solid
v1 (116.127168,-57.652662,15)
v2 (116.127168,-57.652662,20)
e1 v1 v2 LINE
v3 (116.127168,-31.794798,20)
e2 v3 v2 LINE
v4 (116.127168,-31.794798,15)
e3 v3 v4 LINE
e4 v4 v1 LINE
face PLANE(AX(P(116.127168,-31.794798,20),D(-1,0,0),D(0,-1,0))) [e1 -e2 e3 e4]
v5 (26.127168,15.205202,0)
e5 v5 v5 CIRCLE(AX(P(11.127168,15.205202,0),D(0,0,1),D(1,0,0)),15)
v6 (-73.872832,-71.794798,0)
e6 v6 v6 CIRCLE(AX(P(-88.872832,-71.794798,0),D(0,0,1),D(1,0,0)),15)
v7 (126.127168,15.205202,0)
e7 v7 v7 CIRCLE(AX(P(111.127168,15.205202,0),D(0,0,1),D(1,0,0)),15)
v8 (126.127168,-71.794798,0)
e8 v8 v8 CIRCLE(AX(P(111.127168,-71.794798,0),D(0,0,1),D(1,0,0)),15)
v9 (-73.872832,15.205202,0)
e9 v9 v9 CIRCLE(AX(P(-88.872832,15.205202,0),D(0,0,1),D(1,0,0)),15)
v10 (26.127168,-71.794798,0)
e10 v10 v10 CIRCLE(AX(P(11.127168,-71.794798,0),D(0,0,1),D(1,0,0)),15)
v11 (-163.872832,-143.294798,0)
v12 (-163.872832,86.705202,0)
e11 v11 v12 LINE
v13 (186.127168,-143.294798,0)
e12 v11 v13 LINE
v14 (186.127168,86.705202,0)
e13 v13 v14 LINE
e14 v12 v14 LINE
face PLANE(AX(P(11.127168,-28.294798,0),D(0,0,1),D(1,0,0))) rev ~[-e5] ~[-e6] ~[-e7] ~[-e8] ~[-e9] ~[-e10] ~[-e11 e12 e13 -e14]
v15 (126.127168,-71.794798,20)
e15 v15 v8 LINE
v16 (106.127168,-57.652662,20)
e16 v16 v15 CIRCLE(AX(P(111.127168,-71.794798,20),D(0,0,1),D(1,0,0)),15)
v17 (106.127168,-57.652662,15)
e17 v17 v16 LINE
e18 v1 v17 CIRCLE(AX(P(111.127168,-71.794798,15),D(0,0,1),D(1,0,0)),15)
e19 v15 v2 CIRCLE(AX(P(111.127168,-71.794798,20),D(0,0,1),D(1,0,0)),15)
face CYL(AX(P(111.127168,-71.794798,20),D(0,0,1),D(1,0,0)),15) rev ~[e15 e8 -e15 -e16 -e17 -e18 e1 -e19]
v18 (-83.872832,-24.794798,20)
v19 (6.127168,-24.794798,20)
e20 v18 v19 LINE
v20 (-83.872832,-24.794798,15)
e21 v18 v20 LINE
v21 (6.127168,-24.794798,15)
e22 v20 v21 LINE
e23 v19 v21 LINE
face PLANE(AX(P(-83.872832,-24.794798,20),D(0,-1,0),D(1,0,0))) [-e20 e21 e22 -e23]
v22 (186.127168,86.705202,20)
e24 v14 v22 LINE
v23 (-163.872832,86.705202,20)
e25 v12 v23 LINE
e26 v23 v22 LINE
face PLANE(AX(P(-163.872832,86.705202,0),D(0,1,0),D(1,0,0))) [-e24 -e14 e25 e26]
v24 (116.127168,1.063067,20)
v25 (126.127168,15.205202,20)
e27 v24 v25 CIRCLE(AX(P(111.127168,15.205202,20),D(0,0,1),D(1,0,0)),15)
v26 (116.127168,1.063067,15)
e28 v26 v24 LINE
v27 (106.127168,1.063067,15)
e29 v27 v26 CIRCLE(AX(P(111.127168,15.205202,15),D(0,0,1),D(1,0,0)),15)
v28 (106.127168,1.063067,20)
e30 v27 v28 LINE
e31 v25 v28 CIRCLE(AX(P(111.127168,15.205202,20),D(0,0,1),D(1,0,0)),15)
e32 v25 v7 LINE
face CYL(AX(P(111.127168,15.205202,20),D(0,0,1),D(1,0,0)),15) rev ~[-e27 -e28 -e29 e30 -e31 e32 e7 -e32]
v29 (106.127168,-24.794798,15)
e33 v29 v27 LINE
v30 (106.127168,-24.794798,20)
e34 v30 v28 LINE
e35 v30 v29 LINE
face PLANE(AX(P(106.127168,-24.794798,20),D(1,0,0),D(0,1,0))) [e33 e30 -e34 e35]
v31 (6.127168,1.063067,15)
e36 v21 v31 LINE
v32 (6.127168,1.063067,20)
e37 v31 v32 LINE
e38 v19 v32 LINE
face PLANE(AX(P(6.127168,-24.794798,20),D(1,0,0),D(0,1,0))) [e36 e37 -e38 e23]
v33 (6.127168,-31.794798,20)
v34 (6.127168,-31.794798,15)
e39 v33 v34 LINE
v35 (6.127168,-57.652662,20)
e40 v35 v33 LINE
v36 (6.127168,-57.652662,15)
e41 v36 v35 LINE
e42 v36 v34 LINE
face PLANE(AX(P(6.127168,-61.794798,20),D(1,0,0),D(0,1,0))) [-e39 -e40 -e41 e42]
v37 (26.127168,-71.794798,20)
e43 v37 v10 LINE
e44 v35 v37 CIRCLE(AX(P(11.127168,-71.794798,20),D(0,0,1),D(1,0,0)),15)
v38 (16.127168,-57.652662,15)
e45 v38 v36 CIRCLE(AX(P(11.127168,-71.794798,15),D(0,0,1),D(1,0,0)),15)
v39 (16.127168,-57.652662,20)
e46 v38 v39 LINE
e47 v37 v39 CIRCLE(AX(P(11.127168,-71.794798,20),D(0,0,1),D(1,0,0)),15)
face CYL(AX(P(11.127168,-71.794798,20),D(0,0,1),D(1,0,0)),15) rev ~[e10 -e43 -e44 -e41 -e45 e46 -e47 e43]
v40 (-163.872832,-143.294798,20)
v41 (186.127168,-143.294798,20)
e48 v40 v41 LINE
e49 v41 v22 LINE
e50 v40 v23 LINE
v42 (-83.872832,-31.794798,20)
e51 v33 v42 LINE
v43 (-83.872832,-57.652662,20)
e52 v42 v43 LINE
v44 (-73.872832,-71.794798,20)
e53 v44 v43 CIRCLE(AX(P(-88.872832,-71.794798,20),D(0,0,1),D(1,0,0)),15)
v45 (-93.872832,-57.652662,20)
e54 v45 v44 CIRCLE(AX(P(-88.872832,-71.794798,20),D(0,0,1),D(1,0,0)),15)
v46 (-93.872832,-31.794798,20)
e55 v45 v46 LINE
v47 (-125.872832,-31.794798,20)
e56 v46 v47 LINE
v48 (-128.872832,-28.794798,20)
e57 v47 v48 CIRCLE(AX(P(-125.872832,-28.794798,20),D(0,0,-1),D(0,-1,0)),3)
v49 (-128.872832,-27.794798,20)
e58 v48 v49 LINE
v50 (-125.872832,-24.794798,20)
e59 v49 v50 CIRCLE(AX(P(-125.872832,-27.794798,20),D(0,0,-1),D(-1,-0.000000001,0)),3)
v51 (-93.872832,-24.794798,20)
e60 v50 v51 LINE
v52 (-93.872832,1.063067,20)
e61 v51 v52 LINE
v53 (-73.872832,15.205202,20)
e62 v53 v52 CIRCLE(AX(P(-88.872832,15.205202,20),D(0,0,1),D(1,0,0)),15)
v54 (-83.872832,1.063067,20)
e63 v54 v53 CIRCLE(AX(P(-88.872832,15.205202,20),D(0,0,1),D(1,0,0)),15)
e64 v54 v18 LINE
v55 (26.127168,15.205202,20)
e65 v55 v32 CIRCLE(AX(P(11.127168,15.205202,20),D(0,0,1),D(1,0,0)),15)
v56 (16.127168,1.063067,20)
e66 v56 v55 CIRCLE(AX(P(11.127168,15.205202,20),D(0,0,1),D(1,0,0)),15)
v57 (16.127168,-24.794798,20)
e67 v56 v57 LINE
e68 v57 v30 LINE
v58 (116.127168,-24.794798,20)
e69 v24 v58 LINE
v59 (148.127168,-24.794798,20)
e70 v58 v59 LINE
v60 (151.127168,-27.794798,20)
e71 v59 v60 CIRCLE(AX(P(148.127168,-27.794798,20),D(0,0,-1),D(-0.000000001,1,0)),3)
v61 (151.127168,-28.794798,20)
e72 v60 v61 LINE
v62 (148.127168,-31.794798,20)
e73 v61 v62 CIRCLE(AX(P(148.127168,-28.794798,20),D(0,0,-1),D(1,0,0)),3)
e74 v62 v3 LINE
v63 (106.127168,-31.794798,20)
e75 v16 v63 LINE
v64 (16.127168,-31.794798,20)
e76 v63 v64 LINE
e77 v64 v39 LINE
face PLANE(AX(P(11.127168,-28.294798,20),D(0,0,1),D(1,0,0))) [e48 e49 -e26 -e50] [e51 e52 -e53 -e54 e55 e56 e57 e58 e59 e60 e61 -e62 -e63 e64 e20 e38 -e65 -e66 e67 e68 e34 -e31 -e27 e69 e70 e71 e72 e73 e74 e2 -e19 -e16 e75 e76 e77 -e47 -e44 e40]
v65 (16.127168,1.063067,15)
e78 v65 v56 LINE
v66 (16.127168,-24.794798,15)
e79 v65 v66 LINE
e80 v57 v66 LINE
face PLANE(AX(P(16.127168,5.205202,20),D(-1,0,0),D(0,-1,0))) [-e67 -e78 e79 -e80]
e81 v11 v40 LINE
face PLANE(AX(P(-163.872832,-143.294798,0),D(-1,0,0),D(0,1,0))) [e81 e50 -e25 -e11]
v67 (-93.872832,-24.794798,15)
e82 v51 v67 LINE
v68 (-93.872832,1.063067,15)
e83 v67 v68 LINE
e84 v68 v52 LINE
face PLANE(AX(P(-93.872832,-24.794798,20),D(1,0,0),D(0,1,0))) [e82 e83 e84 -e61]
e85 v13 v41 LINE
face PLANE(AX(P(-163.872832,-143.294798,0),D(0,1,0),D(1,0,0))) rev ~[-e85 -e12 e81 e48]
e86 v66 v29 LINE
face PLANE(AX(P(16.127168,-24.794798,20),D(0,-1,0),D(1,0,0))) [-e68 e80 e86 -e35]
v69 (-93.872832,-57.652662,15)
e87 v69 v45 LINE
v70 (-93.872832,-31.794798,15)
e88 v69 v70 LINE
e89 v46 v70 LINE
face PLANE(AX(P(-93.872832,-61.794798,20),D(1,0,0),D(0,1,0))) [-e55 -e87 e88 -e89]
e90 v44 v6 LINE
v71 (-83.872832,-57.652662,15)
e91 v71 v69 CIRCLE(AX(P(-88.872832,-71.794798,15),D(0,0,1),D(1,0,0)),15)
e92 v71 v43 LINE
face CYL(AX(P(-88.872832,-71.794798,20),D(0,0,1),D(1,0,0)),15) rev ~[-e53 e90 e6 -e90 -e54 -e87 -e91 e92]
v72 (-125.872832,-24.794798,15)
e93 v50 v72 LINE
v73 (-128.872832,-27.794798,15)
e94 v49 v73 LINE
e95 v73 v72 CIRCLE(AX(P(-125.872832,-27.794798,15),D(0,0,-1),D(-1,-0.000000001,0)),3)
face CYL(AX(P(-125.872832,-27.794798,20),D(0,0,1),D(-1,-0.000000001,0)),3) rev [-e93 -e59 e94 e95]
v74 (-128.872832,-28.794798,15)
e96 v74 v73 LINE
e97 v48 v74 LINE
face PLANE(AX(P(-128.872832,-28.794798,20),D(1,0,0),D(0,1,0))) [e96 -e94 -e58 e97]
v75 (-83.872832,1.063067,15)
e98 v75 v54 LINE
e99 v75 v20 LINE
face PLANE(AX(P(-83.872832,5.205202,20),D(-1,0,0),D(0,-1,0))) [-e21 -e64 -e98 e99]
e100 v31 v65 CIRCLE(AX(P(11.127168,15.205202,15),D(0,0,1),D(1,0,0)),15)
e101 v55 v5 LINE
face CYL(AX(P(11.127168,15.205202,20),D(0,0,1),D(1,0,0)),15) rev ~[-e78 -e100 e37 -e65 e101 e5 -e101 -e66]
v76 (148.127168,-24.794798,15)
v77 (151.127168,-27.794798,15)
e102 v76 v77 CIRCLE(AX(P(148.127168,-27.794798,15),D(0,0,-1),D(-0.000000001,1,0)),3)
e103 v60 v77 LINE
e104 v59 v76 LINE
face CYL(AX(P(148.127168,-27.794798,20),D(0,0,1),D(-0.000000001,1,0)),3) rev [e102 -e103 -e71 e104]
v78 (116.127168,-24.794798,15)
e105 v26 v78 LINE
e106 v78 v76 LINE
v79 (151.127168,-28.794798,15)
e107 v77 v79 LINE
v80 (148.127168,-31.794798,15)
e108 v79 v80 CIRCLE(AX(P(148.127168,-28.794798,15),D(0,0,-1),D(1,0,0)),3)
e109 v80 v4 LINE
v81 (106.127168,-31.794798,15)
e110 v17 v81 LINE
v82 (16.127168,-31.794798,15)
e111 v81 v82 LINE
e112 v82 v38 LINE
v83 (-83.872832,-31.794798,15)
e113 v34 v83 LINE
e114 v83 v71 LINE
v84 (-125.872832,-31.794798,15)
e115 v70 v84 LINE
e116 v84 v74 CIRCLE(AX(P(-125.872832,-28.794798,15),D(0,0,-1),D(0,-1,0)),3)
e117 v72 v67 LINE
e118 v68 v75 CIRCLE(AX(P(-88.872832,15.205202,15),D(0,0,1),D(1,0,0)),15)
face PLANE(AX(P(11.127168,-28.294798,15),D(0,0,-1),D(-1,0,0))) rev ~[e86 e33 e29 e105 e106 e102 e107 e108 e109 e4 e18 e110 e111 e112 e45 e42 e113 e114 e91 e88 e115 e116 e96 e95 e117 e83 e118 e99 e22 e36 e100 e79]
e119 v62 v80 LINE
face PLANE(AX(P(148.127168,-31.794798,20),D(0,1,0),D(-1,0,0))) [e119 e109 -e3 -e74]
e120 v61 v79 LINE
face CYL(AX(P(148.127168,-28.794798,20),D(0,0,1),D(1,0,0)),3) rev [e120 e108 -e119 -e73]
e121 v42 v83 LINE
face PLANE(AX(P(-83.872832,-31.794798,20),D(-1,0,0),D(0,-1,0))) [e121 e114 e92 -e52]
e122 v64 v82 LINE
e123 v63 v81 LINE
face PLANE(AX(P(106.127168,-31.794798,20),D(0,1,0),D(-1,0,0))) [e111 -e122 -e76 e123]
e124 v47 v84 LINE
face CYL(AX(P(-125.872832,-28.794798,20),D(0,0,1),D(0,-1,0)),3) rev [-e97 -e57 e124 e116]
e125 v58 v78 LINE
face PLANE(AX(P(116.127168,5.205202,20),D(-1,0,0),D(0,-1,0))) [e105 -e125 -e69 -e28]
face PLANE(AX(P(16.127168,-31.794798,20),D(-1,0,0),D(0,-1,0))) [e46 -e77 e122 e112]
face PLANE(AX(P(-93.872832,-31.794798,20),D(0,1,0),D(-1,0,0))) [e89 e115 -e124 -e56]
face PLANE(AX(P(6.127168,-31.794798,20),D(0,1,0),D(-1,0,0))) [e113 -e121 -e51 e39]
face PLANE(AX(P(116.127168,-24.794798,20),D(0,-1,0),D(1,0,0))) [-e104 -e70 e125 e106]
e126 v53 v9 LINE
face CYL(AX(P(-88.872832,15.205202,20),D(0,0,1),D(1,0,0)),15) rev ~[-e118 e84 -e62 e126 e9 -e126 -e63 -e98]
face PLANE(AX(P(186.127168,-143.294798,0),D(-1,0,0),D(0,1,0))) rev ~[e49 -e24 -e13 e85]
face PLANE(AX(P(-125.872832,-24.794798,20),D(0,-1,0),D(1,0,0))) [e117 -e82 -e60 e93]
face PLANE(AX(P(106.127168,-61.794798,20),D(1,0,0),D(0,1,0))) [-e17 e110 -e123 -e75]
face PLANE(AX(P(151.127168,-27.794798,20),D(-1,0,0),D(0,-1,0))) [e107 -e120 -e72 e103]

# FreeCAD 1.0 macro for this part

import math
import FreeCAD as App
import Part
import Sketcher


def add_polygon(sketch, points):
    """Adds a closed chain of lines whose ends are joined by coincident constraints."""
    first, n = sketch.GeometryCount, len(points)
    for a, b in zip(points, points[1:] + points[:1]):
        sketch.addGeometry(Part.LineSegment(App.Vector(*a, 0), App.Vector(*b, 0)), False)
    for i in range(n):
        sketch.addConstraint(Sketcher.Constraint("Coincident", first + i, 2, first + (i + 1) % n, 1))

doc = App.newDocument("Part")
body = doc.addObject("PartDesign::Body", "Body")

# Sketch on XY plane
sketch1 = body.newObject("Sketcher::SketchObject", "Sketch")
sketch1.AttachmentSupport = (doc.getObject("XY_Plane"), [""])
sketch1.MapMode = "FlatFace"
add_polygon(sketch1, [(-164, 87), (-164, -143), (186, -143), (186, 87)])  # lines 0-3
sketch1.addConstraint([
    Sketcher.Constraint("Vertical", 0),
    Sketcher.Constraint("Horizontal", 1),
    Sketcher.Constraint("Vertical", 2),
    Sketcher.Constraint("Horizontal", 3),
    Sketcher.Constraint("DistanceX", 1, 1, 1, 2, 350.0),
    Sketcher.Constraint("DistanceY", 0, 2, 0, 1, 230.0),
    Sketcher.Constraint("DistanceX", 0, 2, -1, 1, 163.872832),
    Sketcher.Constraint("DistanceY", 0, 2, -1, 1, 143.294798),
])
pad1 = body.newObject("PartDesign::Pad", "Pad")
pad1.Profile = sketch1
pad1.Length = 20

# Sketch on XY plane
sketch2 = body.newObject("Sketcher::SketchObject", "Sketch001")
sketch2.AttachmentSupport = (doc.getObject("XY_Plane"), [""])
sketch2.MapMode = "FlatFace"
sketch2.AttachmentOffset = App.Placement(App.Vector(0, 0, 20), App.Rotation())
sketch2.addGeometry([
    Part.LineSegment(App.Vector(-93.9, -24.8, 0), App.Vector(-125.9, -24.8, 0)),  # 0
    Part.ArcOfCircle(Part.Circle(App.Vector(-125.9, -27.8, 0), App.Vector(0, 0, 1), 3), math.radians(90), math.radians(180)),  # 1
    Part.LineSegment(App.Vector(-128.9, -27.8, 0), App.Vector(-128.9, -28.8, 0)),  # 2
    Part.ArcOfCircle(Part.Circle(App.Vector(-125.9, -28.8, 0), App.Vector(0, 0, 1), 3), math.radians(180), math.radians(270)),  # 3
    Part.LineSegment(App.Vector(-125.9, -31.8, 0), App.Vector(-93.9, -31.8, 0)),  # 4
    Part.LineSegment(App.Vector(-93.9, -31.8, 0), App.Vector(-93.9, -61.8, 0)),  # 5
    Part.LineSegment(App.Vector(-93.9, -61.8, 0), App.Vector(-83.9, -61.8, 0)),  # 6
    Part.LineSegment(App.Vector(-83.9, -61.8, 0), App.Vector(-83.9, -31.8, 0)),  # 7
    Part.LineSegment(App.Vector(-83.9, -31.8, 0), App.Vector(6.1, -31.8, 0)),  # 8
    Part.LineSegment(App.Vector(6.1, -31.8, 0), App.Vector(6.1, -61.8, 0)),  # 9
    Part.LineSegment(App.Vector(6.1, -61.8, 0), App.Vector(16.1, -61.8, 0)),  # 10
    Part.LineSegment(App.Vector(16.1, -61.8, 0), App.Vector(16.1, -31.8, 0)),  # 11
    Part.LineSegment(App.Vector(16.1, -31.8, 0), App.Vector(106.1, -31.8, 0)),  # 12
    Part.LineSegment(App.Vector(106.1, -31.8, 0), App.Vector(106.1, -61.8, 0)),  # 13
    Part.LineSegment(App.Vector(106.1, -61.8, 0), App.Vector(116.1, -61.8, 0)),  # 14
    Part.LineSegment(App.Vector(116.1, -61.8, 0), App.Vector(116.1, -31.8, 0)),  # 15
    Part.LineSegment(App.Vector(116.1, -31.8, 0), App.Vector(148.1, -31.8, 0)),  # 16
    Part.ArcOfCircle(Part.Circle(App.Vector(148.1, -28.8, 0), App.Vector(0, 0, 1), 3), math.radians(-90), math.radians(0)),  # 17
    Part.LineSegment(App.Vector(151.1, -28.8, 0), App.Vector(151.1, -27.8, 0)),  # 18
    Part.ArcOfCircle(Part.Circle(App.Vector(148.1, -27.8, 0), App.Vector(0, 0, 1), 3), math.radians(0), math.radians(90)),  # 19
    Part.LineSegment(App.Vector(148.1, -24.8, 0), App.Vector(116.1, -24.8, 0)),  # 20
    Part.LineSegment(App.Vector(116.1, -24.8, 0), App.Vector(116.1, 5.2, 0)),  # 21
    Part.LineSegment(App.Vector(116.1, 5.2, 0), App.Vector(106.1, 5.2, 0)),  # 22
    Part.LineSegment(App.Vector(106.1, 5.2, 0), App.Vector(106.1, -24.8, 0)),  # 23
    Part.LineSegment(App.Vector(106.1, -24.8, 0), App.Vector(16.1, -24.8, 0)),  # 24
    Part.LineSegment(App.Vector(16.1, -24.8, 0), App.Vector(16.1, 5.2, 0)),  # 25
    Part.LineSegment(App.Vector(16.1, 5.2, 0), App.Vector(6.1, 5.2, 0)),  # 26
    Part.LineSegment(App.Vector(6.1, 5.2, 0), App.Vector(6.1, -24.8, 0)),  # 27
    Part.LineSegment(App.Vector(6.1, -24.8, 0), App.Vector(-83.9, -24.8, 0)),  # 28
    Part.LineSegment(App.Vector(-83.9, -24.8, 0), App.Vector(-83.9, 5.2, 0)),  # 29
    Part.LineSegment(App.Vector(-83.9, 5.2, 0), App.Vector(-93.9, 5.2, 0)),  # 30
    Part.LineSegment(App.Vector(-93.9, 5.2, 0), App.Vector(-93.9, -24.8, 0)),  # 31
], False)
sketch2.addConstraint([
    Sketcher.Constraint("Tangent", 0, 2, 1, 1),
    Sketcher.Constraint("Tangent", 1, 2, 2, 1),
    Sketcher.Constraint("Tangent", 2, 2, 3, 1),
    Sketcher.Constraint("Tangent", 3, 2, 4, 1),
    Sketcher.Constraint("Coincident", 4, 2, 5, 1),
    Sketcher.Constraint("Coincident", 5, 2, 6, 1),
    Sketcher.Constraint("Coincident", 6, 2, 7, 1),
    Sketcher.Constraint("Coincident", 7, 2, 8, 1),
    Sketcher.Constraint("Coincident", 8, 2, 9, 1),
    Sketcher.Constraint("Coincident", 9, 2, 10, 1),
    Sketcher.Constraint("Coincident", 10, 2, 11, 1),
    Sketcher.Constraint("Coincident", 11, 2, 12, 1),
    Sketcher.Constraint("Coincident", 12, 2, 13, 1),
    Sketcher.Constraint("Coincident", 13, 2, 14, 1),
    Sketcher.Constraint("Coincident", 14, 2, 15, 1),
    Sketcher.Constraint("Coincident", 15, 2, 16, 1),
    Sketcher.Constraint("Tangent", 16, 2, 17, 1),
    Sketcher.Constraint("Tangent", 17, 2, 18, 1),
    Sketcher.Constraint("Tangent", 18, 2, 19, 1),
    Sketcher.Constraint("Tangent", 19, 2, 20, 1),
    Sketcher.Constraint("Coincident", 20, 2, 21, 1),
    Sketcher.Constraint("Coincident", 21, 2, 22, 1),
    Sketcher.Constraint("Coincident", 22, 2, 23, 1),
    Sketcher.Constraint("Coincident", 23, 2, 24, 1),
    Sketcher.Constraint("Coincident", 24, 2, 25, 1),
    Sketcher.Constraint("Coincident", 25, 2, 26, 1),
    Sketcher.Constraint("Coincident", 26, 2, 27, 1),
    Sketcher.Constraint("Coincident", 27, 2, 28, 1),
    Sketcher.Constraint("Coincident", 28, 2, 29, 1),
    Sketcher.Constraint("Coincident", 29, 2, 30, 1),
    Sketcher.Constraint("Coincident", 30, 2, 31, 1),
    Sketcher.Constraint("Coincident", 31, 2, 0, 1),
    Sketcher.Constraint("Horizontal", 0),
    Sketcher.Constraint("Vertical", 2),
    Sketcher.Constraint("Horizontal", 4),
    Sketcher.Constraint("Vertical", 5),
    Sketcher.Constraint("Horizontal", 6),
    Sketcher.Constraint("Vertical", 7),
    Sketcher.Constraint("Horizontal", 8),
    Sketcher.Constraint("Vertical", 9),
    Sketcher.Constraint("Horizontal", 10),
    Sketcher.Constraint("Vertical", 11),
    Sketcher.Constraint("Horizontal", 12),
    Sketcher.Constraint("Vertical", 13),
    Sketcher.Constraint("Horizontal", 14),
    Sketcher.Constraint("Vertical", 15),
    Sketcher.Constraint("Horizontal", 16),
    Sketcher.Constraint("Vertical", 18),
    Sketcher.Constraint("Horizontal", 20),
    Sketcher.Constraint("Vertical", 21),
    Sketcher.Constraint("Horizontal", 22),
    Sketcher.Constraint("Vertical", 23),
    Sketcher.Constraint("Horizontal", 24),
    Sketcher.Constraint("Vertical", 25),
    Sketcher.Constraint("Horizontal", 26),
    Sketcher.Constraint("Vertical", 27),
    Sketcher.Constraint("Horizontal", 28),
    Sketcher.Constraint("Vertical", 29),
    Sketcher.Constraint("Horizontal", 30),
    Sketcher.Constraint("Vertical", 31),
    Sketcher.Constraint("Equal", 1, 3),
    Sketcher.Constraint("Equal", 3, 17),
    Sketcher.Constraint("Equal", 17, 19),
    Sketcher.Constraint("Horizontal", 3, 3, 17, 3),
    Sketcher.Constraint("Horizontal", 1, 3, 19, 3),
    Sketcher.Constraint("Horizontal", 4, 2, 7, 2),
    Sketcher.Constraint("Horizontal", 6, 2, 9, 2),
    Sketcher.Constraint("Horizontal", 8, 2, 11, 2),
    Sketcher.Constraint("Horizontal", 10, 2, 13, 2),
    Sketcher.Constraint("Horizontal", 20, 2, 23, 2),
    Sketcher.Constraint("Horizontal", 22, 2, 25, 2),
    Sketcher.Constraint("Horizontal", 24, 2, 27, 2),
    Sketcher.Constraint("Horizontal", 26, 2, 29, 2),
    Sketcher.Constraint("Vertical", 15, 2, 20, 2),
    Sketcher.Constraint("Vertical", 13, 2, 22, 2),
    Sketcher.Constraint("Vertical", 11, 2, 24, 2),
    Sketcher.Constraint("Vertical", 9, 2, 26, 2),
    Sketcher.Constraint("Vertical", 7, 2, 28, 2),
    Sketcher.Constraint("Vertical", 5, 2, 30, 2),
    Sketcher.Constraint("Equal", 6, 10),
    Sketcher.Constraint("Equal", 8, 12),
    Sketcher.Constraint("Equal", 10, 14),
    Sketcher.Constraint("Equal", 4, 16),
    Sketcher.Constraint("Equal", 15, 21),
    Sketcher.Constraint("Radius", 1, 3.0),
    Sketcher.Constraint("DistanceX", 0, 2, 0, 1, 32.0),
    Sketcher.Constraint("DistanceX", 6, 1, 6, 2, 10.0),
    Sketcher.Constraint("DistanceX", 8, 1, 8, 2, 90.0),
    Sketcher.Constraint("DistanceY", 2, 2, 2, 1, 1.0),
    Sketcher.Constraint("DistanceY", 5, 2, 5, 1, 30.0),
    Sketcher.Constraint("DistanceX", 1, 3, -1, 1, 125.872832),
    Sketcher.Constraint("DistanceY", 1, 3, -1, 1, 27.794798),
])
pocket1 = body.newObject("PartDesign::Pocket", "Pocket")
pocket1.Profile = sketch2
pocket1.Length = 5

# Sketch on XY plane
sketch3 = body.newObject("Sketcher::SketchObject", "Sketch002")
sketch3.AttachmentSupport = (doc.getObject("XY_Plane"), [""])
sketch3.MapMode = "FlatFace"
sketch3.AttachmentOffset = App.Placement(App.Vector(0, 0, 20), App.Rotation())
sketch3.addGeometry([
    Part.Circle(App.Vector(111, 15, 0), App.Vector(0, 0, 1), 15),  # 0
    Part.Circle(App.Vector(11, 15, 0), App.Vector(0, 0, 1), 15),  # 1
    Part.Circle(App.Vector(-89, 15, 0), App.Vector(0, 0, 1), 15),  # 2
    Part.Circle(App.Vector(111, -72, 0), App.Vector(0, 0, 1), 15),  # 3
    Part.Circle(App.Vector(11, -72, 0), App.Vector(0, 0, 1), 15),  # 4
    Part.Circle(App.Vector(-89, -72, 0), App.Vector(0, 0, 1), 15),  # 5
], False)
sketch3.addConstraint([
    Sketcher.Constraint("Equal", 0, 1),
    Sketcher.Constraint("Equal", 1, 2),
    Sketcher.Constraint("Equal", 2, 3),
    Sketcher.Constraint("Equal", 3, 4),
    Sketcher.Constraint("Equal", 4, 5),
    Sketcher.Constraint("Horizontal", 0, 3, 1, 3),
    Sketcher.Constraint("Horizontal", 1, 3, 2, 3),
    Sketcher.Constraint("Horizontal", 3, 3, 4, 3),
    Sketcher.Constraint("Horizontal", 4, 3, 5, 3),
    Sketcher.Constraint("Vertical", 0, 3, 3, 3),
    Sketcher.Constraint("Vertical", 1, 3, 4, 3),
    Sketcher.Constraint("Vertical", 2, 3, 5, 3),
    Sketcher.Constraint("Diameter", 0, 30.0),
    Sketcher.Constraint("DistanceX", 1, 3, 0, 3, 100.0),
    Sketcher.Constraint("DistanceX", 2, 3, 1, 3, 100.0),
    Sketcher.Constraint("DistanceY", 3, 3, 0, 3, 87.0),
    Sketcher.Constraint("DistanceX", -1, 1, 0, 3, 111.127168),
    Sketcher.Constraint("DistanceY", -1, 1, 0, 3, 15.205202),
])
pocket2 = body.newObject("PartDesign::Pocket", "Pocket001")
pocket2.Profile = sketch3
pocket2.Length = 20

doc.recompute()
